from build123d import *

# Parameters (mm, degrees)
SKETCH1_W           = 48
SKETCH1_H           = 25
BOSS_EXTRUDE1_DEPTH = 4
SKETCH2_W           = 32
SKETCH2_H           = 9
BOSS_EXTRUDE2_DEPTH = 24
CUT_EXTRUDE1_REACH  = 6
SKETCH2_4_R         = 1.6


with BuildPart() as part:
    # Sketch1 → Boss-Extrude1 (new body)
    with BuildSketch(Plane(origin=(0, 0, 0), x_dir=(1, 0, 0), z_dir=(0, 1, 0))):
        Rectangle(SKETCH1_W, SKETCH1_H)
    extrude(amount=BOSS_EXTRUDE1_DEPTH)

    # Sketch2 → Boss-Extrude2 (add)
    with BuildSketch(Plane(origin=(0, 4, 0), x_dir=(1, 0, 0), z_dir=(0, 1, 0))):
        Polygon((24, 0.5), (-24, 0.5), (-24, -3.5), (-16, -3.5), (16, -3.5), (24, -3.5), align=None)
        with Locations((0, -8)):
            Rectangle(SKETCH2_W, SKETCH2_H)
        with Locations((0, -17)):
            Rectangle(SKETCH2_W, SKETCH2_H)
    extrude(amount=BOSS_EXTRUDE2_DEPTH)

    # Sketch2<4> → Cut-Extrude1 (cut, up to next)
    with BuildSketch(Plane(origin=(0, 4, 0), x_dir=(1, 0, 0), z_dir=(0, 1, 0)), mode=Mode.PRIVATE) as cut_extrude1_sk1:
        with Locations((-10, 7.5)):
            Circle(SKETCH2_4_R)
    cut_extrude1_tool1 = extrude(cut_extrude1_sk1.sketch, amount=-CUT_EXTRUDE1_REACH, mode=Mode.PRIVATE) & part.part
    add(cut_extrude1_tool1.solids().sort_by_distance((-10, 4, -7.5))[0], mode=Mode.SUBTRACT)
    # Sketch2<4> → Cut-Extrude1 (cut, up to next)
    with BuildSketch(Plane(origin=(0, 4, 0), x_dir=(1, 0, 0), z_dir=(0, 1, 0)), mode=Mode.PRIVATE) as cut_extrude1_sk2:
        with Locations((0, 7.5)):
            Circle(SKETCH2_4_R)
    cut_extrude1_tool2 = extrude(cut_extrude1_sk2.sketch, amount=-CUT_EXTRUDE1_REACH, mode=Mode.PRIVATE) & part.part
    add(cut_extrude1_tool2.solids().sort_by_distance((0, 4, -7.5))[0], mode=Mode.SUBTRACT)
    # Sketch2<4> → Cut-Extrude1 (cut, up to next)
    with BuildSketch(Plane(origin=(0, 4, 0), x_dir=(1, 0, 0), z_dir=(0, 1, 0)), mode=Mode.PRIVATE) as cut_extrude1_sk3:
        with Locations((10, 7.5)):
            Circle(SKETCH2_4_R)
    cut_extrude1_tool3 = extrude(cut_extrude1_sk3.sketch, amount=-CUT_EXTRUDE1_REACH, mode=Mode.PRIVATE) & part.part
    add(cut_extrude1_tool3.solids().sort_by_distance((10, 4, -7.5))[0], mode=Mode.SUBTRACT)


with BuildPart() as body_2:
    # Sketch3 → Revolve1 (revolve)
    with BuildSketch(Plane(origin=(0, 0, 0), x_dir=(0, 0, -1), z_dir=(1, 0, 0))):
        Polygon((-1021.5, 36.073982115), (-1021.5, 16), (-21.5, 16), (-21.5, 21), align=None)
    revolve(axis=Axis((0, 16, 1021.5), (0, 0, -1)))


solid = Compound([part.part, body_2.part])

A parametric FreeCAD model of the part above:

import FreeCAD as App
import Part
import Sketcher
from FreeCAD import Vector

doc = App.newDocument("Part")
params = doc.addObject("Spreadsheet::Sheet", "Params")
for row, (alias, value) in enumerate([
    ("sketch1_width", "48 mm"),
    ("sketch1_height", "25 mm"),
    ("pad1_length", "4 mm"),
    ("sketch2_width", "48 mm"),
    ("sketch2_width2", "8 mm"),
    ("sketch2_height", "4 mm"),
    ("sketch2_height2", "18 mm"),
    ("pad2_length", "24 mm"),
    ("sketch3_diameter", "3.2 mm"),
    ("sketch4_diameter", "3.2 mm"),
    ("sketch5_diameter", "3.2 mm"),
    ("sketch6_width", "5 mm"),
    ("sketch6_height", "1000 mm"),
    ("revolution_angle", "360 deg"),
], start=1):
    params.set(f"A{row}", alias)
    params.set(f"B{row}", "=" + value)
    params.setAlias(f"B{row}", alias)

body = doc.addObject("PartDesign::Body", "Body")

sketch1 = doc.addObject("Sketcher::SketchObject", "Sketch")
body.addObject(sketch1)
sketch1.AttachmentSupport = (doc.XZ_Plane, [""])
sketch1.MapMode = "FlatFace"
sketch1.addGeometry([
    Part.LineSegment(Vector(-24, -12.5, 0), Vector(-24, 12.5, 0)),
    Part.LineSegment(Vector(-24, 12.5, 0), Vector(24, 12.5, 0)),
    Part.LineSegment(Vector(24, 12.5, 0), Vector(24, -12.5, 0)),
    Part.LineSegment(Vector(24, -12.5, 0), Vector(-24, -12.5, 0)),
], False)
sketch1.addConstraint([
    Sketcher.Constraint("Coincident", 0, 2, 1, 1),
    Sketcher.Constraint("Coincident", 1, 2, 2, 1),
    Sketcher.Constraint("Coincident", 2, 2, 3, 1),
    Sketcher.Constraint("Coincident", 3, 2, 0, 1),
    Sketcher.Constraint("Vertical", 0),
    Sketcher.Constraint("Horizontal", 1),
    Sketcher.Constraint("Vertical", 2),
    Sketcher.Constraint("Horizontal", 3),
    Sketcher.Constraint("Symmetric", 0, 2, 2, 2, -1, 1),
    Sketcher.Constraint("DistanceX", 1, 1, 1, 2, 48.0),
    Sketcher.Constraint("DistanceY", 0, 1, 0, 2, 25.0),
])
sketch1.setExpression("Constraints[9]", "Params.sketch1_width")
sketch1.setExpression("Constraints[10]", "Params.sketch1_height")
pad1 = doc.addObject("PartDesign::Pad", "Pad")
body.addObject(pad1)
pad1.Profile = sketch1
pad1.setExpression("Length", "Params.pad1_length")
pad1.Reversed = True

sketch2 = doc.addObject("Sketcher::SketchObject", "Sketch001")
body.addObject(sketch2)
sketch2.AttachmentSupport = (doc.XZ_Plane, [""])
sketch2.MapMode = "FlatFace"
sketch2.AttachmentOffset = App.Placement(Vector(0, 0, -4), App.Rotation())
sketch2.addGeometry([
    Part.LineSegment(Vector(24, -0.5, 0), Vector(-24, -0.5, 0)),
    Part.LineSegment(Vector(-24, -0.5, 0), Vector(-24, 3.5, 0)),
    Part.LineSegment(Vector(-24, 3.5, 0), Vector(-16, 3.5, 0)),
    Part.LineSegment(Vector(-16, 3.5, 0), Vector(-16, 21.5, 0)),
    Part.LineSegment(Vector(-16, 21.5, 0), Vector(16, 21.5, 0)),
    Part.LineSegment(Vector(16, 21.5, 0), Vector(16, 3.5, 0)),
    Part.LineSegment(Vector(16, 3.5, 0), Vector(24, 3.5, 0)),
    Part.LineSegment(Vector(24, 3.5, 0), Vector(24, -0.5, 0)),
], False)
sketch2.addConstraint([
    Sketcher.Constraint("Coincident", 0, 2, 1, 1),
    Sketcher.Constraint("Coincident", 1, 2, 2, 1),
    Sketcher.Constraint("Coincident", 2, 2, 3, 1),
    Sketcher.Constraint("Coincident", 3, 2, 4, 1),
    Sketcher.Constraint("Coincident", 4, 2, 5, 1),
    Sketcher.Constraint("Coincident", 5, 2, 6, 1),
    Sketcher.Constraint("Coincident", 6, 2, 7, 1),
    Sketcher.Constraint("Coincident", 7, 2, 0, 1),
    Sketcher.Constraint("Horizontal", 0),
    Sketcher.Constraint("Vertical", 1),
    Sketcher.Constraint("Horizontal", 2),
    Sketcher.Constraint("Vertical", 3),
    Sketcher.Constraint("Horizontal", 4),
    Sketcher.Constraint("Vertical", 5),
    Sketcher.Constraint("Horizontal", 6),
    Sketcher.Constraint("Vertical", 7),
    Sketcher.Constraint("Symmetric", 2, 2, 5, 2, -2),
    Sketcher.Constraint("Equal", 2, 6),
    Sketcher.Constraint("DistanceX", 0, 2, 0, 1, 48.0),
    Sketcher.Constraint("DistanceX", 2, 1, 2, 2, 8.0),
    Sketcher.Constraint("DistanceY", 1, 1, 1, 2, 4.0),
    Sketcher.Constraint("DistanceY", 3, 1, 3, 2, 18.0),
    Sketcher.Constraint("DistanceY", 0, 2, -1, 1, 0.5),
])
sketch2.setExpression("Constraints[18]", "Params.sketch2_width")
sketch2.setExpression("Constraints[19]", "Params.sketch2_width2")
sketch2.setExpression("Constraints[20]", "Params.sketch2_height")
sketch2.setExpression("Constraints[21]", "Params.sketch2_height2")
pad2 = doc.addObject("PartDesign::Pad", "Pad001")
body.addObject(pad2)
pad2.Profile = sketch2
pad2.setExpression("Length", "Params.pad2_length")
pad2.Reversed = True

sketch3 = doc.addObject("Sketcher::SketchObject", "Sketch002")
body.addObject(sketch3)
sketch3.AttachmentSupport = (doc.XZ_Plane, [""])
sketch3.MapMode = "FlatFace"
sketch3.AttachmentOffset = App.Placement(Vector(0, 0, -4), App.Rotation())
sketch3.addGeometry(Part.Circle(Vector(-10, -7.5, 0), Vector(0, 0, 1), 1.6), False)
sketch3.addConstraint([
    Sketcher.Constraint("Diameter", 0, 3.2),
    Sketcher.Constraint("DistanceX", 0, 3, -1, 1, 10.0),
    Sketcher.Constraint("DistanceY", 0, 3, -1, 1, 7.5),
])
sketch3.setExpression("Constraints[0]", "Params.sketch3_diameter")
pocket1 = doc.addObject("PartDesign::Pocket", "Pocket")
body.addObject(pocket1)
pocket1.Profile = sketch3
pocket1.Type = "UpToFirst"
pocket1.Reversed = True

sketch4 = doc.addObject("Sketcher::SketchObject", "Sketch003")
body.addObject(sketch4)
sketch4.AttachmentSupport = (doc.XZ_Plane, [""])
sketch4.MapMode = "FlatFace"
sketch4.AttachmentOffset = App.Placement(Vector(0, 0, -4), App.Rotation())
sketch4.addGeometry(Part.Circle(Vector(0, -7.5, 0), Vector(0, 0, 1), 1.6), False)
sketch4.addConstraint([
    Sketcher.Constraint("PointOnObject", 0, 3, -2),
    Sketcher.Constraint("Diameter", 0, 3.2),
    Sketcher.Constraint("DistanceY", 0, 3, -1, 1, 7.5),
])
sketch4.setExpression("Constraints[1]", "Params.sketch4_diameter")
pocket2 = doc.addObject("PartDesign::Pocket", "Pocket001")
body.addObject(pocket2)
pocket2.Profile = sketch4
pocket2.Type = "UpToFirst"
pocket2.Reversed = True

sketch5 = doc.addObject("Sketcher::SketchObject", "Sketch004")
body.addObject(sketch5)
sketch5.AttachmentSupport = (doc.XZ_Plane, [""])
sketch5.MapMode = "FlatFace"
sketch5.AttachmentOffset = App.Placement(Vector(0, 0, -4), App.Rotation())
sketch5.addGeometry(Part.Circle(Vector(10, -7.5, 0), Vector(0, 0, 1), 1.6), False)
sketch5.addConstraint([
    Sketcher.Constraint("Diameter", 0, 3.2),
    Sketcher.Constraint("DistanceX", -1, 1, 0, 3, 10.0),
    Sketcher.Constraint("DistanceY", 0, 3, -1, 1, 7.5),
])
sketch5.setExpression("Constraints[0]", "Params.sketch5_diameter")
pocket3 = doc.addObject("PartDesign::Pocket", "Pocket002")
body.addObject(pocket3)
pocket3.Profile = sketch5
pocket3.Type = "UpToFirst"
pocket3.Reversed = True
body2 = doc.addObject("PartDesign::Body", "Body001")

sketch6 = doc.addObject("Sketcher::SketchObject", "Sketch005")
body2.addObject(sketch6)
sketch6.AttachmentSupport = (doc.getObject("YZ_Plane001"), [""])
sketch6.MapMode = "FlatFace"
sketch6.addGeometry([
    Part.LineSegment(Vector(36.073982, 1021.5, 0), Vector(16, 1021.5, 0)),
    Part.LineSegment(Vector(16, 1021.5, 0), Vector(16, 21.5, 0)),
    Part.LineSegment(Vector(16, 21.5, 0), Vector(21, 21.5, 0)),
    Part.LineSegment(Vector(21, 21.5, 0), Vector(36.073982, 1021.5, 0)),
], False)
sketch6.addGeometry(Part.LineSegment(Vector(16, 1021.5, 0), Vector(16, 21.5, 0)), True)
sketch6.addConstraint([
    Sketcher.Constraint("Coincident", 0, 2, 1, 1),
    Sketcher.Constraint("Coincident", 1, 2, 2, 1),
    Sketcher.Constraint("Coincident", 2, 2, 3, 1),
    Sketcher.Constraint("Coincident", 3, 2, 0, 1),
    Sketcher.Constraint("Horizontal", 0),
    Sketcher.Constraint("Vertical", 1),
    Sketcher.Constraint("Horizontal", 2),
    Sketcher.Constraint("Vertical", 4),
    Sketcher.Constraint("Coincident", 4, 1, 0, 2),
    Sketcher.Constraint("Horizontal", 2, 2, 4, 2),
    Sketcher.Constraint("DistanceX", 2, 1, 2, 2, 5.0),
    Sketcher.Constraint("DistanceY", 1, 2, 1, 1, 1000.0),
    Sketcher.Constraint("DistanceX", -1, 1, 0, 2, 16.0),
    Sketcher.Constraint("DistanceY", -1, 1, 0, 2, 1021.5),
    Sketcher.Constraint("DistanceX", 0, 2, 0, 1, 20.073982),
])
sketch6.setExpression("Constraints[10]", "Params.sketch6_width")
sketch6.setExpression("Constraints[11]", "Params.sketch6_height")
revolution = doc.addObject("PartDesign::Revolution", "Revolution")
body2.addObject(revolution)
revolution.Profile = sketch6
revolution.ReferenceAxis = (sketch6, ["Axis0"])
revolution.setExpression("Angle", "Params.revolution_angle")

doc.recompute()
